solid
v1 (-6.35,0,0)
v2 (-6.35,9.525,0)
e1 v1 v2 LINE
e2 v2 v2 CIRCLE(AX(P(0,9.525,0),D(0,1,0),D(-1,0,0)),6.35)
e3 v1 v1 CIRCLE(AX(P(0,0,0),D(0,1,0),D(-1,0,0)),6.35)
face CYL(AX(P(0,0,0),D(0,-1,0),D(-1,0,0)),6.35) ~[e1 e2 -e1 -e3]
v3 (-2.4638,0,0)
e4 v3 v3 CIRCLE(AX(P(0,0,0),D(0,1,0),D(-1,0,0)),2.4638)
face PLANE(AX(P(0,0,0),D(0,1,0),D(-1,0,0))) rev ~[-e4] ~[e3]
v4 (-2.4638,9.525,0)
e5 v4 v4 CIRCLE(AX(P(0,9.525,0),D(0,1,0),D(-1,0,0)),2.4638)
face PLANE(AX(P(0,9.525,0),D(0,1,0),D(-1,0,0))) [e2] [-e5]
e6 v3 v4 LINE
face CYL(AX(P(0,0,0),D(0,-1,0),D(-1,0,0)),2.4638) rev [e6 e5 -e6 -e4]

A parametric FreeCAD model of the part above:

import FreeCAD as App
import Part
import Sketcher
Q = App.Units.Quantity

doc = App.newDocument("Part")
params = doc.addObject("Spreadsheet::Sheet", "Params")
for row, (alias, value) in enumerate([
    ("sketch1_diameter", "0.5 in"),
    ("sketch1_diameter2", "0.194 in"),
    ("pad1_length", "0.375 in"),
], start=1):
    params.set(f"A{row}", alias)
    params.set(f"B{row}", "=" + value)
    params.setAlias(f"B{row}", alias)

body = doc.addObject("PartDesign::Body", "Body")

# Sketch on XZ plane
sketch1 = doc.addObject("Sketcher::SketchObject", "Sketch")
body.addObject(sketch1)
sketch1.AttachmentSupport = (doc.XZ_Plane, [""])
sketch1.MapMode = "FlatFace"
sketch1.addGeometry([
    Part.Circle(App.Vector(0, 0, 0), App.Vector(0, 0, 1), 6.35),
    Part.Circle(App.Vector(0, 0, 0), App.Vector(0, 0, 1), 2.4638),
], False)
sketch1.addConstraint([
    Sketcher.Constraint("Coincident", 0, 3, -1, 1),
    Sketcher.Constraint("Coincident", 1, 3, -1, 1),
    Sketcher.Constraint("Diameter", 0, Q("0.5 in")),
    Sketcher.Constraint("Diameter", 1, Q("0.194 in")),
])
sketch1.setExpression("Constraints[2]", "Params.sketch1_diameter")
sketch1.setExpression("Constraints[3]", "Params.sketch1_diameter2")
pad1 = doc.addObject("PartDesign::Pad", "Pad")
body.addObject(pad1)
pad1.Profile = sketch1
pad1.setExpression("Length", "Params.pad1_length")
pad1.Reversed = True

doc.recompute()
